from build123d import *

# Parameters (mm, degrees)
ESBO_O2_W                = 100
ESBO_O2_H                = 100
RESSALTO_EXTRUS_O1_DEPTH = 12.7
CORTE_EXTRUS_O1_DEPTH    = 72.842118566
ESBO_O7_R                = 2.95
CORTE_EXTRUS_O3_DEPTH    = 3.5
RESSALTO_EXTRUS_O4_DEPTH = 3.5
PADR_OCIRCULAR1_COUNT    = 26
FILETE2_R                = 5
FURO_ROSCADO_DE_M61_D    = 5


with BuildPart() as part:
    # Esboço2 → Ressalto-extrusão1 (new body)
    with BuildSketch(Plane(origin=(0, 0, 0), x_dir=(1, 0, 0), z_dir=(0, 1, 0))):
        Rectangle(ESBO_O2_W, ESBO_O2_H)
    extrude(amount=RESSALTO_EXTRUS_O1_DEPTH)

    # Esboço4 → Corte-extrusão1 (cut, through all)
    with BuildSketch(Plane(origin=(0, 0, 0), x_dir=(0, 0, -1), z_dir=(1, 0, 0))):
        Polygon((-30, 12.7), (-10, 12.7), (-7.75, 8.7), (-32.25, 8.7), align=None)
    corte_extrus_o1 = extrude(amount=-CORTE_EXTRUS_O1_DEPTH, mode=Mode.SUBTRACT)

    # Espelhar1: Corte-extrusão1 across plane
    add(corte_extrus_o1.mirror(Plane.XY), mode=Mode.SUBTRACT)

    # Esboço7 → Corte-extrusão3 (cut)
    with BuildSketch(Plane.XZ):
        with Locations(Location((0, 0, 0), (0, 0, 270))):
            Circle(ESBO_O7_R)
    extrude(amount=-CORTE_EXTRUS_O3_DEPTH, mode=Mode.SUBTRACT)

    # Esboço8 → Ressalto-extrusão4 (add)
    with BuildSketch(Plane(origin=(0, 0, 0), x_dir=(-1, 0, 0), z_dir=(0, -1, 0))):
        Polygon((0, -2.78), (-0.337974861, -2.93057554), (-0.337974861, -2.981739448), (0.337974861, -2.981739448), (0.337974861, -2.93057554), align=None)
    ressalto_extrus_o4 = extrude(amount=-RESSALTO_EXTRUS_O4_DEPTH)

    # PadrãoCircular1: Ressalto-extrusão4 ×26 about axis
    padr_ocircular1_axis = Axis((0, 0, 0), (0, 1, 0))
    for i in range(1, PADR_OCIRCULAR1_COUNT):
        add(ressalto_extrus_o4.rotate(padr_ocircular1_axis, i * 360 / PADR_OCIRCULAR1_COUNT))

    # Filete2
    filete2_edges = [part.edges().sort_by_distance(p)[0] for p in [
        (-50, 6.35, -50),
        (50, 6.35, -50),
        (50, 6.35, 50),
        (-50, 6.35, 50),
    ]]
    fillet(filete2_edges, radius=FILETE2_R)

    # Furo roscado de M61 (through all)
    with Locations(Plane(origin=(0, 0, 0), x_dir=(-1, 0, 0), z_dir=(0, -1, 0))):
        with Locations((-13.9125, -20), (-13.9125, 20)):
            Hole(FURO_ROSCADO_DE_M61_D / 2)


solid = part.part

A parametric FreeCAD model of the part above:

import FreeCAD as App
import Part
import Sketcher
from FreeCAD import Vector
Q = App.Units.Quantity


def edges_at(feature, points):
    """Names of the edges that pass closest to the given points."""
    edges = feature.Shape.Edges
    near = lambda p: min(range(len(edges)), key=lambda i: edges[i].distToShape(Part.Vertex(*p))[0])
    return sorted({f"Edge{near(p) + 1}" for p in points})

doc = App.newDocument("Part")
body = doc.addObject("PartDesign::Body", "Body")

sketch1 = doc.addObject("Sketcher::SketchObject", "Sketch")
body.addObject(sketch1)
sketch1.AttachmentSupport = (doc.XZ_Plane, [""])
sketch1.MapMode = "FlatFace"
sketch1.addGeometry(Part.LineSegment(Vector(-50, -50, 0), Vector(-50, 50, 0)), False)
sketch1.addGeometry(Part.LineSegment(Vector(-50, 50, 0), Vector(50, 50, 0)), False)
sketch1.addGeometry(Part.LineSegment(Vector(50, 50, 0), Vector(50, -50, 0)), False)
sketch1.addGeometry(Part.LineSegment(Vector(50, -50, 0), Vector(-50, -50, 0)), False)
sketch1.addConstraint(Sketcher.Constraint("Coincident", 0, 2, 1, 1))
sketch1.addConstraint(Sketcher.Constraint("Coincident", 1, 2, 2, 1))
sketch1.addConstraint(Sketcher.Constraint("Coincident", 2, 2, 3, 1))
sketch1.addConstraint(Sketcher.Constraint("Coincident", 3, 2, 0, 1))
sketch1.addConstraint(Sketcher.Constraint("Vertical", 0))
sketch1.addConstraint(Sketcher.Constraint("Horizontal", 1))
sketch1.addConstraint(Sketcher.Constraint("Vertical", 2))
sketch1.addConstraint(Sketcher.Constraint("Horizontal", 3))
sketch1.addConstraint(Sketcher.Constraint("Symmetric", 0, 2, 2, 2, -1, 1))
sketch1.addConstraint(Sketcher.Constraint("Equal", 3, 0))
sketch1.addConstraint(Sketcher.Constraint("DistanceX", 1, 1, 1, 2, Q("100 mm")))
pad1 = doc.addObject("PartDesign::Pad", "Pad")
body.addObject(pad1)
pad1.Profile = sketch1
pad1.Length = 12.7
pad1.Reversed = True

sketch2 = doc.addObject("Sketcher::SketchObject", "Sketch001")
body.addObject(sketch2)
sketch2.AttachmentSupport = (doc.YZ_Plane, [""])
sketch2.MapMode = "FlatFace"
sketch2.addGeometry(Part.LineSegment(Vector(12.7, 10, 0), Vector(12.7, 30, 0)), False)
sketch2.addGeometry(Part.LineSegment(Vector(12.7, 30, 0), Vector(8.7, 32.25, 0)), False)
sketch2.addGeometry(Part.LineSegment(Vector(8.7, 32.25, 0), Vector(8.7, 7.75, 0)), False)
sketch2.addGeometry(Part.LineSegment(Vector(8.7, 7.75, 0), Vector(12.7, 10, 0)), False)
sketch2.addConstraint(Sketcher.Constraint("Coincident", 0, 2, 1, 1))
sketch2.addConstraint(Sketcher.Constraint("Coincident", 1, 2, 2, 1))
sketch2.addConstraint(Sketcher.Constraint("Coincident", 2, 2, 3, 1))
sketch2.addConstraint(Sketcher.Constraint("Coincident", 3, 2, 0, 1))
sketch2.addConstraint(Sketcher.Constraint("Vertical", 0))
sketch2.addConstraint(Sketcher.Constraint("Vertical", 2))
sketch2.addConstraint(Sketcher.Constraint("Equal", 1, 3))
sketch2.addConstraint(Sketcher.Constraint("DistanceY", 0, 1, 0, 2, Q("20 mm")))
sketch2.addConstraint(Sketcher.Constraint("DistanceY", 2, 2, 2, 1, Q("24.5 mm")))
sketch2.addConstraint(Sketcher.Constraint("DistanceY", -1, 1, 0, 2, Q("30 mm")))
sketch2.addConstraint(Sketcher.Constraint("DistanceX", 1, 2, 0, 2, Q("4 mm")))
sketch2.addConstraint(Sketcher.Constraint("DistanceX", -1, 1, 0, 2, Q("12.7 mm")))
pocket1 = doc.addObject("PartDesign::Pocket", "Pocket")
body.addObject(pocket1)
pocket1.Profile = sketch2
pocket1.Type = "ThroughAll"
doc.recompute()

mirrored = doc.addObject("PartDesign::Mirrored", "Mirrored")
body.addObject(mirrored)
mirrored.Originals = [pocket1]
mirrored.MirrorPlane = (doc.XY_Plane, [""])
body.Tip = mirrored

sketch3 = doc.addObject("Sketcher::SketchObject", "Sketch002")
body.addObject(sketch3)
sketch3.AttachmentSupport = (doc.XZ_Plane, [""])
sketch3.MapMode = "FlatFace"
sketch3.addGeometry(Part.Circle(Vector(0, 0, 0), Vector(0, 0, 1), 2.95), False)
sketch3.addConstraint(Sketcher.Constraint("Coincident", 0, 3, -1, 1))
sketch3.addConstraint(Sketcher.Constraint("Diameter", 0, Q("5.9 mm")))
pocket2 = doc.addObject("PartDesign::Pocket", "Pocket001")
body.addObject(pocket2)
pocket2.Profile = sketch3
pocket2.Length = 3.5

sketch4 = doc.addObject("Sketcher::SketchObject", "Sketch003")
body.addObject(sketch4)
sketch4.AttachmentSupport = (doc.XZ_Plane, [""])
sketch4.MapMode = "FlatFace"
sketch4.addGeometry(Part.LineSegment(Vector(0, 2.78, 0), Vector(0.337975, 2.930576, 0)), False)
sketch4.addGeometry(Part.LineSegment(Vector(0.337975, 2.930576, 0), Vector(0.337975, 2.981739, 0)), False)
sketch4.addGeometry(Part.LineSegment(Vector(0.337975, 2.981739, 0), Vector(-0.337975, 2.981739, 0)), False)
sketch4.addGeometry(Part.LineSegment(Vector(-0.337975, 2.981739, 0), Vector(-0.337975, 2.930576, 0)), False)
sketch4.addGeometry(Part.LineSegment(Vector(-0.337975, 2.930576, 0), Vector(0, 2.78, 0)), False)
sketch4.addConstraint(Sketcher.Constraint("Coincident", 0, 2, 1, 1))
sketch4.addConstraint(Sketcher.Constraint("Coincident", 1, 2, 2, 1))
sketch4.addConstraint(Sketcher.Constraint("Coincident", 2, 2, 3, 1))
sketch4.addConstraint(Sketcher.Constraint("Coincident", 3, 2, 4, 1))
sketch4.addConstraint(Sketcher.Constraint("Coincident", 4, 2, 0, 1))
sketch4.addConstraint(Sketcher.Constraint("Vertical", 1))
sketch4.addConstraint(Sketcher.Constraint("Horizontal", 2))
sketch4.addConstraint(Sketcher.Constraint("Vertical", 3))
sketch4.addConstraint(Sketcher.Constraint("Symmetric", 0, 2, 3, 2, -2))
sketch4.addConstraint(Sketcher.Constraint("PointOnObject", 4, 2, -2))
sketch4.addConstraint(Sketcher.Constraint("Distance", 0, Q("0.37 mm")))
sketch4.addConstraint(Sketcher.Constraint("DistanceY", -1, 1, 4, 2, Q("2.78 mm")))
sketch4.addConstraint(Sketcher.Constraint("DistanceX", 2, 2, 2, 1, Q("0.67595 mm")))
sketch4.addConstraint(Sketcher.Constraint("DistanceY", 1, 1, 1, 2, Q("0.051164 mm")))
pad2 = doc.addObject("PartDesign::Pad", "Pad001")
body.addObject(pad2)
pad2.Profile = sketch4
pad2.Length = 3.5
pad2.Reversed = True
doc.recompute()

polarpattern = doc.addObject("PartDesign::PolarPattern", "PolarPattern")
body.addObject(polarpattern)
polarpattern.Originals = [pad2]
polarpattern.Axis = (doc.Y_Axis, [""])
polarpattern.Angle = 360
polarpattern.Occurrences = 26
body.Tip = polarpattern
doc.recompute()

fillet = doc.addObject("PartDesign::Fillet", "Fillet")
body.addObject(fillet)
fillet.Base = (polarpattern, edges_at(polarpattern, [
    (-50, 6.35, -50),
    (50, 6.35, -50),
    (50, 6.35, 50),
    (-50, 6.35, 50),
]))
fillet.Radius = 5

sketch5 = doc.addObject("Sketcher::SketchObject", "Sketch004")
body.addObject(sketch5)
sketch5.AttachmentSupport = (doc.XZ_Plane, [""])
sketch5.MapMode = "FlatFace"
sketch5.addGeometry(Part.Circle(Vector(13.9125, 20, 0), Vector(0, 0, 1), 2.5), False)
sketch5.addGeometry(Part.Circle(Vector(13.9125, -20, 0), Vector(0, 0, 1), 2.5), False)
sketch5.addConstraint(Sketcher.Constraint("Equal", 0, 1))
sketch5.addConstraint(Sketcher.Constraint("Symmetric", 0, 3, 1, 3, -1))
sketch5.addConstraint(Sketcher.Constraint("Diameter", 0, Q("5 mm")))
sketch5.addConstraint(Sketcher.Constraint("DistanceY", -1, 1, 0, 3, Q("20 mm")))
sketch5.addConstraint(Sketcher.Constraint("DistanceX", -1, 1, 0, 3, Q("13.9125 mm")))
doc.recompute()
hole = doc.addObject("PartDesign::Hole", "Hole")
body.addObject(hole)
hole.Profile = sketch5
hole.ThreadType = "None"
hole.Diameter = 5
hole.DepthType = "ThroughAll"

doc.recompute()
